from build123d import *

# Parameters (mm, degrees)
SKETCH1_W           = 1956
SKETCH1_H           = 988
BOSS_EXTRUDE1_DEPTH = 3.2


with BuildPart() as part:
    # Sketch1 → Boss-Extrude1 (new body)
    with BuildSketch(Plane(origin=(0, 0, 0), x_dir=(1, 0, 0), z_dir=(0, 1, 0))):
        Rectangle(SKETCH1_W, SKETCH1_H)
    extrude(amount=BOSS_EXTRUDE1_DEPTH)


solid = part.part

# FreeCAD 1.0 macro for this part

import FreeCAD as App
import Part
import Sketcher
from FreeCAD import Vector


def add_polygon(sketch, points):
    """Adds a closed chain of lines whose ends are joined by coincident constraints."""
    first, n = sketch.GeometryCount, len(points)
    for a, b in zip(points, points[1:] + points[:1]):
        sketch.addGeometry(Part.LineSegment(App.Vector(*a, 0), App.Vector(*b, 0)), False)
    for i in range(n):
        sketch.addConstraint(Sketcher.Constraint("Coincident", first + i, 2, first + (i + 1) % n, 1))

doc = App.newDocument("Part")
body = doc.addObject("PartDesign::Body", "Body")

# Sketch on XZ plane
sketch1 = body.newObject("Sketcher::SketchObject", "Sketch")
sketch1.AttachmentSupport = (doc.getObject("XZ_Plane"), [""])
sketch1.MapMode = "FlatFace"
add_polygon(sketch1, [(-978, -494), (-978, 494), (978, 494), (978, -494)])  # lines 0-3
sketch1.addConstraint(Sketcher.Constraint("Vertical", 0))
sketch1.addConstraint(Sketcher.Constraint("Horizontal", 1))
sketch1.addConstraint(Sketcher.Constraint("Vertical", 2))
sketch1.addConstraint(Sketcher.Constraint("Horizontal", 3))
sketch1.addConstraint(Sketcher.Constraint("Symmetric", 0, 2, 2, 2, -1, 1))
sketch1.addConstraint(Sketcher.Constraint("DistanceX", 1, 1, 1, 2, 1956.0))
sketch1.addConstraint(Sketcher.Constraint("DistanceY", 0, 1, 0, 2, 988.0))
pad1 = body.newObject("PartDesign::Pad", "Pad")
pad1.Profile = sketch1
pad1.Length = 3.2
pad1.Reversed = True

doc.recompute()
